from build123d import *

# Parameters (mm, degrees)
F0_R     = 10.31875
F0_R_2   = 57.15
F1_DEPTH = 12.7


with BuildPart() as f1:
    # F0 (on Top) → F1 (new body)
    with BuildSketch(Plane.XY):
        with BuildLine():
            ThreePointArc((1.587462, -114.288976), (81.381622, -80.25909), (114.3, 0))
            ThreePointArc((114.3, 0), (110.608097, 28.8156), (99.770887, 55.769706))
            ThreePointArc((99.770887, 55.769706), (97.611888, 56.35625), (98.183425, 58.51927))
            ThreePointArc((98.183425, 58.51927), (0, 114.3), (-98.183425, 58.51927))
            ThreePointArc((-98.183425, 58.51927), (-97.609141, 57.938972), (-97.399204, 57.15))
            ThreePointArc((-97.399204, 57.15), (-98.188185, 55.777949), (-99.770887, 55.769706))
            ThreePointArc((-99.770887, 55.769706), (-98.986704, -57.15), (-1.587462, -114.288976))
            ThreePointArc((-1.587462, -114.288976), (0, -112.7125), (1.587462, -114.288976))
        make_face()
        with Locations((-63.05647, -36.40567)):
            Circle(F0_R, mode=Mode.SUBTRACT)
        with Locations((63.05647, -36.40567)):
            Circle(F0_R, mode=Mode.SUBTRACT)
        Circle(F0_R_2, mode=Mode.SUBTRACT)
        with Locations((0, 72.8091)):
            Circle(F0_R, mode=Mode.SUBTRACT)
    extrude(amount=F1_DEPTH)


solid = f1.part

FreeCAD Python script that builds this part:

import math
import FreeCAD as App
import Part
import Sketcher
from FreeCAD import Vector
Q = App.Units.Quantity

doc = App.newDocument("Part")
body = doc.addObject("PartDesign::Body", "Body")

sketch1 = body.newObject("Sketcher::SketchObject", "Sketch")
sketch1.AttachmentSupport = (doc.getObject("XY_Plane"), [""])
sketch1.MapMode = "FlatFace"
sketch1.addGeometry([
    Part.ArcOfCircle(Part.Circle(Vector(0, 0, 0), Vector(0, 0, 1), 114.3), math.radians(-89), math.radians(0)),
    Part.ArcOfCircle(Part.Circle(Vector(0, 0, 0), Vector(0, 0, 1), 114.3), math.radians(0), math.radians(29)),
    Part.ArcOfCircle(Part.Circle(Vector(99, 57.2, 0), Vector(0, 0, 1), 1.6), math.radians(120), math.radians(300)),
    Part.ArcOfCircle(Part.Circle(Vector(0, 0, 0), Vector(0, 0, 1), 114.3), math.radians(31), math.radians(149)),
    Part.ArcOfCircle(Part.Circle(Vector(-99, 57.2, 0), Vector(0, 0, 1), 1.6), math.radians(0), math.radians(60)),
    Part.ArcOfCircle(Part.Circle(Vector(-99, 57.1, 0), Vector(0, 0, 1), 1.6), math.radians(-120), math.radians(0)),
    Part.ArcOfCircle(Part.Circle(Vector(0, 0, 0), Vector(0, 0, 1), 114.3), math.radians(151), math.radians(269)),
    Part.ArcOfCircle(Part.Circle(Vector(0, -114.3, 0), Vector(0, 0, 1), 1.6), math.radians(0), math.radians(180)),
    Part.Circle(Vector(-63.1, -36.4, 0), Vector(0, 0, 1), 10.3),
    Part.Circle(Vector(0, 0, 0), Vector(0, 0, 1), 57.1),
    Part.Circle(Vector(63.1, -36.4, 0), Vector(0, 0, 1), 10.3),
    Part.Circle(Vector(0, 72.8, 0), Vector(0, 0, 1), 10.3),
], False)
sketch1.addConstraint([
    Sketcher.Constraint("Tangent", 0, 2, 1, 1),
    Sketcher.Constraint("Coincident", 1, 2, 2, 2),
    Sketcher.Constraint("Coincident", 2, 1, 3, 1),
    Sketcher.Constraint("Coincident", 3, 2, 4, 2),
    Sketcher.Constraint("Tangent", 4, 1, 5, 2),
    Sketcher.Constraint("Coincident", 5, 1, 6, 1),
    Sketcher.Constraint("Coincident", 6, 2, 7, 2),
    Sketcher.Constraint("Coincident", 7, 1, 0, 1),
    Sketcher.Constraint("Coincident", 0, 3, -1, 1),
    Sketcher.Constraint("Coincident", 3, 3, -1, 1),
    Sketcher.Constraint("Coincident", 6, 3, -1, 1),
    Sketcher.Constraint("Coincident", 9, 3, -1, 1),
    Sketcher.Constraint("Equal", 2, 4),
    Sketcher.Constraint("Equal", 4, 5),
    Sketcher.Constraint("Equal", 3, 6),
    Sketcher.Constraint("Equal", 5, 7),
    Sketcher.Constraint("Equal", 8, 10),
    Sketcher.Constraint("Equal", 10, 11),
    Sketcher.Constraint("Symmetric", 2, 3, 4, 3, -2),
    Sketcher.Constraint("Symmetric", 8, 3, 10, 3, -2),
    Sketcher.Constraint("Symmetric", 6, 2, 7, 1, -2),
    Sketcher.Constraint("PointOnObject", 11, 3, -2),
    Sketcher.Constraint("PointOnObject", 0, 2, -1),
    Sketcher.Constraint("Horizontal", 5, 3, 4, 1),
    Sketcher.Constraint("Diameter", 9, Q("4.5 in")),
    Sketcher.Constraint("Radius", 0, Q("4.5000001 in")),
    Sketcher.Constraint("Diameter", 8, Q("0.8125 in")),
    Sketcher.Constraint("Radius", 2, Q("0.0625 in")),
    Sketcher.Constraint("DistanceY", 7, 3, -1, 1, Q("4.5 in")),
    Sketcher.Constraint("DistanceY", -1, 1, 2, 3, Q("2.25 in")),
    Sketcher.Constraint("Radius", 1, Q("114.30001 mm")),
    Sketcher.Constraint("DistanceY", -1, 1, 11, 3, Q("2.8665 in")),
    Sketcher.Constraint("DistanceX", 8, 3, -1, 1, Q("63.05647 mm")),
    Sketcher.Constraint("DistanceY", 8, 3, -1, 1, Q("36.40567 mm")),
    Sketcher.Constraint("DistanceY", -1, 1, 2, 1, Q("58.51927 mm")),
])
pad1 = body.newObject("PartDesign::Pad", "Pad")
pad1.Profile = sketch1
pad1.Length = Q("0.5 in")

doc.recompute()
